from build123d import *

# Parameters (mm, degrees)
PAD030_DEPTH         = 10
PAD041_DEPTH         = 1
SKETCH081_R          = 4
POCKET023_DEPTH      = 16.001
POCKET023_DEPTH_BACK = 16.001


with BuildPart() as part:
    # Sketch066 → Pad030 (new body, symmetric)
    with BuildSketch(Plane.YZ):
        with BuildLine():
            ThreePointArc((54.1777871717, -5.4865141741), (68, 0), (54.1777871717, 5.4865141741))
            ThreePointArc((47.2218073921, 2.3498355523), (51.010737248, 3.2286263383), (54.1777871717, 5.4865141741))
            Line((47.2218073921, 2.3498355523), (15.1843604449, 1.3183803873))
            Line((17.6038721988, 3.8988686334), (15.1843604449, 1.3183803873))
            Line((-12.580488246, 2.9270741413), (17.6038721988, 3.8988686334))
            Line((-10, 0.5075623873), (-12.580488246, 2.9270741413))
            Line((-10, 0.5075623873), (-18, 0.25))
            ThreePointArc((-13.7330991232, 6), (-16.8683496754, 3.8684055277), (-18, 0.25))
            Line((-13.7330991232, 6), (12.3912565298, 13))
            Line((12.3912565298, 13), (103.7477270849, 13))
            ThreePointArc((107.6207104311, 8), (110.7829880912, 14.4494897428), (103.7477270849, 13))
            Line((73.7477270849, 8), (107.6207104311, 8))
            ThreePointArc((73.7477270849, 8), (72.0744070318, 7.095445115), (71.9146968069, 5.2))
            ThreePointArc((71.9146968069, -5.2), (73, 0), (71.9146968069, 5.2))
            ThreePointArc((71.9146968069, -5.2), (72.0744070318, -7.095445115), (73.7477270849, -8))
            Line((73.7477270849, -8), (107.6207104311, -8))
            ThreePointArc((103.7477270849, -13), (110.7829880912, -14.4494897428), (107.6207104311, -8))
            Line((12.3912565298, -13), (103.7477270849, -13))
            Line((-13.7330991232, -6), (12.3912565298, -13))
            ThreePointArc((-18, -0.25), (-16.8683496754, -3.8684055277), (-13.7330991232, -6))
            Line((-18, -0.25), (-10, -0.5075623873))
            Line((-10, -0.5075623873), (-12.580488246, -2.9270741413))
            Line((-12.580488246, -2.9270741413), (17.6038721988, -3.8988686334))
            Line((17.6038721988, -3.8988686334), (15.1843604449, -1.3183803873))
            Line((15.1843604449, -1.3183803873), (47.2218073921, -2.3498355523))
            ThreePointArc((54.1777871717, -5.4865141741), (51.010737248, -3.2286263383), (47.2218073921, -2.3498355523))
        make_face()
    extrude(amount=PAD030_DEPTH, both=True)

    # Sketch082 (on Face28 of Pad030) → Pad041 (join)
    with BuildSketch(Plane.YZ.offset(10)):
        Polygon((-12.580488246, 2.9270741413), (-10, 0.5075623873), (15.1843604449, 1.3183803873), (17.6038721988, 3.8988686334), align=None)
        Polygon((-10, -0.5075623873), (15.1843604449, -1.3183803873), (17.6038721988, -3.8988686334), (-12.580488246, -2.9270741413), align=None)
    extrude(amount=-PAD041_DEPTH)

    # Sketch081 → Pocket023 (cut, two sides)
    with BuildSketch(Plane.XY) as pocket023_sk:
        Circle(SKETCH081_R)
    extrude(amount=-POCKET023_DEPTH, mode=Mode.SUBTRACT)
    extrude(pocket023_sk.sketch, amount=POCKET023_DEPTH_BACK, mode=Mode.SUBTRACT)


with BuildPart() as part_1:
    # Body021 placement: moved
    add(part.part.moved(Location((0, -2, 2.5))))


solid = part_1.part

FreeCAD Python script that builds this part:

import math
import FreeCAD as App
import Part
import Sketcher
Q = App.Units.Quantity


def add_polygon(sketch, points):
    """Adds a closed chain of lines whose ends are joined by coincident constraints."""
    first, n = sketch.GeometryCount, len(points)
    for a, b in zip(points, points[1:] + points[:1]):
        sketch.addGeometry(Part.LineSegment(App.Vector(*a, 0), App.Vector(*b, 0)), False)
    for i in range(n):
        sketch.addConstraint(Sketcher.Constraint("Coincident", first + i, 2, first + (i + 1) % n, 1))

doc = App.newDocument("Part")
body = doc.addObject("PartDesign::Body", "Body")

sketch1 = body.newObject("Sketcher::SketchObject", "Sketch")
sketch1.AttachmentSupport = (doc.getObject("YZ_Plane"), [""])
sketch1.MapMode = "FlatFace"
sketch1.addGeometry(Part.ArcOfCircle(Part.Circle(App.Vector(60, 0, 0), App.Vector(0, 0, 1), 8), math.radians(-136.700321), math.radians(136.700321)), False)
sketch1.addGeometry(Part.ArcOfCircle(Part.Circle(App.Vector(46.900021, -12.344657, 0), App.Vector(0, 0, 1), 10), math.radians(43.299679), math.radians(88.155982)), False)
sketch1.addGeometry(Part.LineSegment(App.Vector(47.221807, -2.349836, 0), App.Vector(15.18436, -1.31838, 0)), False)
sketch1.addGeometry(Part.LineSegment(App.Vector(15.18436, -1.31838, 0), App.Vector(17.603872, -3.898869, 0)), False)
sketch1.addGeometry(Part.LineSegment(App.Vector(17.603872, -3.898869, 0), App.Vector(-12.580488, -2.927074, 0)), False)
sketch1.addGeometry(Part.LineSegment(App.Vector(-12.580488, -2.927074, 0), App.Vector(-10, -0.507562, 0)), False)
sketch1.addGeometry(Part.LineSegment(App.Vector(-10, -0.507562, 0), App.Vector(-18, -0.25, 0)), False)
sketch1.addGeometry(Part.ArcOfCircle(Part.Circle(App.Vector(-12.242063, -0.435378, 0), App.Vector(0, 0, 1), 5.76092), math.radians(178.155982), math.radians(255)), False)
sketch1.addGeometry(Part.LineSegment(App.Vector(-13.733099, -6, 0), App.Vector(12.391257, -13, 0)), False)
sketch1.addGeometry(Part.LineSegment(App.Vector(12.391257, -13, 0), App.Vector(103.747727, -13, 0)), False)
sketch1.addGeometry(Part.ArcOfCircle(Part.Circle(App.Vector(107.62071, -12, 0), App.Vector(0, 0, 1), 4), math.radians(-165.522488), math.radians(90)), False)
sketch1.addGeometry(Part.LineSegment(App.Vector(107.62071, -8, 0), App.Vector(73.747727, -8, 0)), False)
sketch1.addGeometry(Part.ArcOfCircle(Part.Circle(App.Vector(73.747727, -6, 0), App.Vector(0, 0, 1), 2), math.radians(156.421822), math.radians(270)), False)
sketch1.addGeometry(Part.ArcOfCircle(Part.Circle(App.Vector(60, 0, 0), App.Vector(0, 0, 1), 13), math.radians(-23.578178), math.radians(23.578178)), False)
sketch1.addGeometry(Part.ArcOfCircle(Part.Circle(App.Vector(73.747727, 6, 0), App.Vector(0, 0, 1), 2), math.radians(90), math.radians(203.578178)), False)
sketch1.addGeometry(Part.LineSegment(App.Vector(73.747727, 8, 0), App.Vector(107.62071, 8, 0)), False)
sketch1.addGeometry(Part.ArcOfCircle(Part.Circle(App.Vector(107.62071, 12, 0), App.Vector(0, 0, 1), 4), math.radians(-90), math.radians(165.522488)), False)
sketch1.addGeometry(Part.LineSegment(App.Vector(103.747727, 13, 0), App.Vector(12.391257, 13, 0)), False)
sketch1.addGeometry(Part.LineSegment(App.Vector(12.391257, 13, 0), App.Vector(-13.733099, 6, 0)), False)
sketch1.addGeometry(Part.ArcOfCircle(Part.Circle(App.Vector(-12.242063, 0.435378, 0), App.Vector(0, 0, 1), 5.76092), math.radians(105), math.radians(181.844018)), False)
sketch1.addGeometry(Part.LineSegment(App.Vector(-18, 0.25, 0), App.Vector(-10, 0.507562, 0)), False)
sketch1.addGeometry(Part.LineSegment(App.Vector(-10, 0.507562, 0), App.Vector(-12.580488, 2.927074, 0)), False)
sketch1.addGeometry(Part.LineSegment(App.Vector(-12.580488, 2.927074, 0), App.Vector(17.603872, 3.898869, 0)), False)
sketch1.addGeometry(Part.LineSegment(App.Vector(17.603872, 3.898869, 0), App.Vector(15.18436, 1.31838, 0)), False)
sketch1.addGeometry(Part.LineSegment(App.Vector(15.18436, 1.31838, 0), App.Vector(47.221807, 2.349836, 0)), False)
sketch1.addGeometry(Part.ArcOfCircle(Part.Circle(App.Vector(46.900021, 12.344657, 0), App.Vector(0, 0, 1), 10), math.radians(-88.155982), math.radians(-43.299679)), False)
sketch1.addConstraint(Sketcher.Constraint("Tangent", 0, 1, 1, 1))
sketch1.addConstraint(Sketcher.Constraint("Tangent", 1, 2, 2, 1))
sketch1.addConstraint(Sketcher.Constraint("Coincident", 2, 2, 3, 1))
sketch1.addConstraint(Sketcher.Constraint("Coincident", 3, 2, 4, 1))
sketch1.addConstraint(Sketcher.Constraint("Coincident", 4, 2, 5, 1))
sketch1.addConstraint(Sketcher.Constraint("Coincident", 5, 2, 6, 1))
sketch1.addConstraint(Sketcher.Constraint("Coincident", 6, 2, 7, 1))
sketch1.addConstraint(Sketcher.Constraint("Tangent", 7, 2, 8, 1))
sketch1.addConstraint(Sketcher.Constraint("Coincident", 8, 2, 9, 1))
sketch1.addConstraint(Sketcher.Constraint("Coincident", 9, 2, 10, 1))
sketch1.addConstraint(Sketcher.Constraint("Tangent", 10, 2, 11, 1))
sketch1.addConstraint(Sketcher.Constraint("Tangent", 11, 2, 12, 2))
sketch1.addConstraint(Sketcher.Constraint("Tangent", 12, 1, 13, 1))
sketch1.addConstraint(Sketcher.Constraint("Tangent", 13, 2, 14, 2))
sketch1.addConstraint(Sketcher.Constraint("Tangent", 14, 1, 15, 1))
sketch1.addConstraint(Sketcher.Constraint("Tangent", 15, 2, 16, 1))
sketch1.addConstraint(Sketcher.Constraint("Coincident", 16, 2, 17, 1))
sketch1.addConstraint(Sketcher.Constraint("Coincident", 17, 2, 18, 1))
sketch1.addConstraint(Sketcher.Constraint("Tangent", 18, 2, 19, 1))
sketch1.addConstraint(Sketcher.Constraint("Coincident", 19, 2, 20, 1))
sketch1.addConstraint(Sketcher.Constraint("Coincident", 20, 2, 21, 1))
sketch1.addConstraint(Sketcher.Constraint("Coincident", 21, 2, 22, 1))
sketch1.addConstraint(Sketcher.Constraint("Coincident", 22, 2, 23, 1))
sketch1.addConstraint(Sketcher.Constraint("Coincident", 23, 2, 24, 1))
sketch1.addConstraint(Sketcher.Constraint("Tangent", 24, 2, 25, 1))
sketch1.addConstraint(Sketcher.Constraint("Tangent", 25, 2, 0, 2))
sketch1.addConstraint(Sketcher.Constraint("Horizontal", 9))
sketch1.addConstraint(Sketcher.Constraint("Horizontal", 11))
sketch1.addConstraint(Sketcher.Constraint("Horizontal", 15))
sketch1.addConstraint(Sketcher.Constraint("Horizontal", 17))
sketch1.addConstraint(Sketcher.Constraint("Coincident", 13, 3, 0, 3))
sketch1.addConstraint(Sketcher.Constraint("Equal", 12, 14))
sketch1.addConstraint(Sketcher.Constraint("Equal", 10, 16))
sketch1.addConstraint(Sketcher.Constraint("Equal", 7, 19))
sketch1.addConstraint(Sketcher.Constraint("Equal", 1, 25))
sketch1.addConstraint(Sketcher.Constraint("Symmetric", 12, 3, 14, 3, -1))
sketch1.addConstraint(Sketcher.Constraint("Symmetric", 7, 3, 19, 3, -1))
sketch1.addConstraint(Sketcher.Constraint("Symmetric", 9, 2, 16, 2, -1))
sketch1.addConstraint(Sketcher.Constraint("Symmetric", 5, 2, 20, 2, -1))
sketch1.addConstraint(Sketcher.Constraint("Symmetric", 4, 2, 21, 2, -1))
sketch1.addConstraint(Sketcher.Constraint("Symmetric", 3, 2, 22, 2, -1))
sketch1.addConstraint(Sketcher.Constraint("Symmetric", 2, 2, 23, 2, -1))
sketch1.addConstraint(Sketcher.Constraint("Parallel", 2, 4))
sketch1.addConstraint(Sketcher.Constraint("Perpendicular", 3, 5))
sketch1.addConstraint(Sketcher.Constraint("Parallel", 4, 6))
sketch1.addConstraint(Sketcher.Constraint("Parallel", 20, 22))
sketch1.addConstraint(Sketcher.Constraint("Parallel", 22, 24))
sketch1.addConstraint(Sketcher.Constraint("Horizontal", 12, 3, 7, 2))
sketch1.addConstraint(Sketcher.Constraint("Horizontal", 14, 3, 18, 2))
sketch1.addConstraint(Sketcher.Constraint("Equal", 3, 5))
sketch1.addConstraint(Sketcher.Constraint("Radius", 0, Q("8 mm")))
sketch1.addConstraint(Sketcher.Constraint("Radius", 1, Q("10 mm")))
sketch1.addConstraint(Sketcher.Constraint("Radius", 10, Q("4 mm")))
sketch1.addConstraint(Sketcher.Constraint("Radius", 12, Q("2 mm")))
sketch1.addConstraint(Sketcher.Constraint("Radius", 13, Q("13 mm")))
sketch1.addConstraint(Sketcher.Constraint("Angle", 8, Q("-15 deg")))
sketch1.addConstraint(Sketcher.Constraint("DistanceX", -1, 1, 0, 3, Q("60 mm")))
sketch1.addConstraint(Sketcher.Constraint("DistanceY", 10, 3, -1, 1, Q("12 mm")))
sketch1.addConstraint(Sketcher.Constraint("DistanceX", 5, 2, -1, 1, Q("10 mm")))
sketch1.addConstraint(Sketcher.Constraint("DistanceX", 6, 2, -1, 1, Q("18 mm")))
sketch1.addConstraint(Sketcher.Constraint("DistanceY", 8, 2, -1, 1, Q("13 mm")))
sketch1.addConstraint(Sketcher.Constraint("DistanceX", 12, 3, 9, 2, Q("30 mm")))
sketch1.addConstraint(Sketcher.Constraint("Distance", 4, Q("30.2 mm")))
sketch1.addConstraint(Sketcher.Constraint("DistanceY", 6, 2, 19, 2, Q("0.5 mm")))
sketch1.addConstraint(Sketcher.Constraint("Radius", 7, Q("5.76092 mm")))
sketch1.addConstraint(Sketcher.Constraint("DistanceY", 2, 2, 7, 3, Q("0.883002 mm")))
sketch1.addConstraint(Sketcher.Constraint("DistanceX", -1, 1, 1, 3, Q("46.900021 mm")))
sketch1.addConstraint(Sketcher.Constraint("DistanceX", -1, 1, 2, 2, Q("15.18436 mm")))
pad1 = body.newObject("PartDesign::Pad", "Pad")
pad1.Profile = sketch1
pad1.Length = 20
pad1.Midplane = True

sketch2 = body.newObject("Sketcher::SketchObject", "Sketch001")
sketch2.AttachmentSupport = (doc.getObject("YZ_Plane"), [""])
sketch2.MapMode = "FlatFace"
sketch2.AttachmentOffset = App.Placement(App.Vector(0, 0, 10), App.Rotation())
add_polygon(sketch2, [(-12.580488, 2.927074), (-10, 0.507562), (15.18436, 1.31838), (17.603872, 3.898869)])
add_polygon(sketch2, [(15.18436, -1.31838), (-10, -0.507562), (-12.580488, -2.927074), (17.603872, -3.898869)])
sketch2.addConstraint(Sketcher.Constraint("Symmetric", 0, 2, 4, 2, -1))
sketch2.addConstraint(Sketcher.Constraint("Symmetric", 3, 2, 5, 2, -1))
sketch2.addConstraint(Sketcher.Constraint("Symmetric", 2, 2, 6, 2, -1))
sketch2.addConstraint(Sketcher.Constraint("Symmetric", 1, 2, 7, 2, -1))
sketch2.addConstraint(Sketcher.Constraint("Perpendicular", 0, 2))
sketch2.addConstraint(Sketcher.Constraint("Parallel", 1, 3))
sketch2.addConstraint(Sketcher.Constraint("Equal", 0, 2))
sketch2.addConstraint(Sketcher.Constraint("DistanceX", 0, 2, -1, 1, Q("10 mm")))
sketch2.addConstraint(Sketcher.Constraint("Distance", 3, Q("30.2 mm")))
sketch2.addConstraint(Sketcher.Constraint("Distance", 1, Q("25.197409 mm")))
sketch2.addConstraint(Sketcher.Constraint("DistanceX", -1, 1, 1, 2, Q("15.18436 mm")))
sketch2.addConstraint(Sketcher.Constraint("DistanceY", -1, 1, 1, 2, Q("1.31838 mm")))
pad2 = body.newObject("PartDesign::Pad", "Pad001")
pad2.Profile = sketch2
pad2.Length = 1
pad2.Reversed = True

sketch3 = body.newObject("Sketcher::SketchObject", "Sketch002")
sketch3.AttachmentSupport = (doc.getObject("XY_Plane"), [""])
sketch3.MapMode = "FlatFace"
sketch3.addGeometry(Part.Circle(App.Vector(0, 0, 0), App.Vector(0, 0, 1), 4), False)
sketch3.addConstraint(Sketcher.Constraint("Coincident", 0, 3, -1, 1))
sketch3.addConstraint(Sketcher.Constraint("Diameter", 0, Q("8 mm")))
pocket1 = body.newObject("PartDesign::Pocket", "Pocket")
pocket1.Profile = sketch3
pocket1.Type = "ThroughAll"
pocket1.Midplane = True
body2 = doc.addObject("PartDesign::Body", "Body001")
doc.recompute()

body.Placement = App.Placement(App.Vector(0, -2, 2.5), App.Rotation(App.Vector(0, 0, 1), 0))
boolean = body2.newObject("PartDesign::Boolean", "Boolean")
boolean.Type = "Fuse"
boolean.addObjects([body])

doc.recompute()
